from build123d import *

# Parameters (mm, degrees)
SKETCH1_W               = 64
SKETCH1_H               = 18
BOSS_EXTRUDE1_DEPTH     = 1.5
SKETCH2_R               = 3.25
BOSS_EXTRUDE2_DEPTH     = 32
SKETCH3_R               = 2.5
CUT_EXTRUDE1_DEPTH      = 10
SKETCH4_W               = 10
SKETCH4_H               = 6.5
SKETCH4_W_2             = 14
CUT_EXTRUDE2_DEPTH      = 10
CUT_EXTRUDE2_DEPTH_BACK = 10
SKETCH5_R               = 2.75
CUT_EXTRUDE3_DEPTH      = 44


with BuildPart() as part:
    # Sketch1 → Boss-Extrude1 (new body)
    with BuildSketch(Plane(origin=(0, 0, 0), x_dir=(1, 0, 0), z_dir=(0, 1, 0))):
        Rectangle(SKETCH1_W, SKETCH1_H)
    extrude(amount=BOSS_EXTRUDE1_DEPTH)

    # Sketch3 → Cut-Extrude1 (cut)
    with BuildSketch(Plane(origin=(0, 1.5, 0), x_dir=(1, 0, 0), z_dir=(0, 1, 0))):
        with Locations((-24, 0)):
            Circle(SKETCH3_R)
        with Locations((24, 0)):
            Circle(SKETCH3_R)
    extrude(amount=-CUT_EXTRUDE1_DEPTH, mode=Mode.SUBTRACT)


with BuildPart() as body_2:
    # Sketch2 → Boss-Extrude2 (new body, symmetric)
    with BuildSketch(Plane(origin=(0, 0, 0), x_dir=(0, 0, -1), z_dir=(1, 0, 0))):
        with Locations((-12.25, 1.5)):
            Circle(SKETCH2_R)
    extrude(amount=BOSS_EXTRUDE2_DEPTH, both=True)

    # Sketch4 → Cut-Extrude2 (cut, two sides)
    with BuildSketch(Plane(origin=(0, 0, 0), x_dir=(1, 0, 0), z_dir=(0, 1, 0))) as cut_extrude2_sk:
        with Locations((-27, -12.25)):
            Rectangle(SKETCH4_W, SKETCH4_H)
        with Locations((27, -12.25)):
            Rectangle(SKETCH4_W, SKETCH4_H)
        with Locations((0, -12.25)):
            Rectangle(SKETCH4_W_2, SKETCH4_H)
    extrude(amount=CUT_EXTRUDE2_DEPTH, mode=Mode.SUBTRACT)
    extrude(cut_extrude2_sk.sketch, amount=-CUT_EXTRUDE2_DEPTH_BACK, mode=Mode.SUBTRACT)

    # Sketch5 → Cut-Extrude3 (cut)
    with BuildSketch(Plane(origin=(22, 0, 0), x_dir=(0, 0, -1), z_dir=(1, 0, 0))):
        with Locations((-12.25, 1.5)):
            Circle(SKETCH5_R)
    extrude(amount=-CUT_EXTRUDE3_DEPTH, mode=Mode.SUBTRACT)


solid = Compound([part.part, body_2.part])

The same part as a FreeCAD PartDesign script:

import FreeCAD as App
import Part
import Sketcher
from FreeCAD import Vector
Q = App.Units.Quantity

doc = App.newDocument("Part")
body = doc.addObject("PartDesign::Body", "Body")

# Sketch on XZ plane
sketch1 = body.newObject("Sketcher::SketchObject", "Sketch")
sketch1.AttachmentSupport = (doc.getObject("XZ_Plane"), [""])
sketch1.MapMode = "FlatFace"
sketch1.addGeometry([
    Part.LineSegment(Vector(-32, -9, 0), Vector(-32, 9, 0)),
    Part.LineSegment(Vector(-32, 9, 0), Vector(32, 9, 0)),
    Part.LineSegment(Vector(32, 9, 0), Vector(32, -9, 0)),
    Part.LineSegment(Vector(32, -9, 0), Vector(-32, -9, 0)),
], False)
sketch1.addConstraint([
    Sketcher.Constraint("Coincident", 0, 2, 1, 1),
    Sketcher.Constraint("Coincident", 1, 2, 2, 1),
    Sketcher.Constraint("Coincident", 2, 2, 3, 1),
    Sketcher.Constraint("Coincident", 3, 2, 0, 1),
    Sketcher.Constraint("Vertical", 0),
    Sketcher.Constraint("Horizontal", 1),
    Sketcher.Constraint("Vertical", 2),
    Sketcher.Constraint("Horizontal", 3),
    Sketcher.Constraint("Symmetric", 0, 2, 2, 2, -1, 1),
    Sketcher.Constraint("DistanceX", 1, 1, 1, 2, Q("64 mm")),
    Sketcher.Constraint("DistanceY", 0, 1, 0, 2, Q("18 mm")),
])
pad1 = body.newObject("PartDesign::Pad", "Pad")
pad1.Profile = sketch1
pad1.Length = 1.5
pad1.Reversed = True

# Sketch on XZ plane
sketch2 = body.newObject("Sketcher::SketchObject", "Sketch001")
sketch2.AttachmentSupport = (doc.getObject("XZ_Plane"), [""])
sketch2.MapMode = "FlatFace"
sketch2.AttachmentOffset = App.Placement(Vector(0, 0, -1.5), App.Rotation())
sketch2.addGeometry([
    Part.Circle(Vector(-24, 0, 0), Vector(0, 0, 1), 2.5),
    Part.Circle(Vector(24, 0, 0), Vector(0, 0, 1), 2.5),
], False)
sketch2.addConstraint([
    Sketcher.Constraint("Equal", 0, 1),
    Sketcher.Constraint("Symmetric", 0, 3, 1, 3, -1, 1),
    Sketcher.Constraint("PointOnObject", 0, 3, -1),
    Sketcher.Constraint("Diameter", 0, Q("5 mm")),
    Sketcher.Constraint("DistanceX", 0, 3, -1, 1, Q("24 mm")),
])
pocket1 = body.newObject("PartDesign::Pocket", "Pocket")
pocket1.Profile = sketch2
pocket1.Length = 10
pocket1.Reversed = True
body2 = doc.addObject("PartDesign::Body", "Body001")
body2.AllowCompound = True

# Sketch on YZ plane
sketch3 = body2.newObject("Sketcher::SketchObject", "Sketch002")
sketch3.AttachmentSupport = (doc.getObject("YZ_Plane001"), [""])
sketch3.MapMode = "FlatFace"
sketch3.addGeometry(Part.Circle(Vector(1.5, 12.25, 0), Vector(0, 0, 1), 3.25), False)
sketch3.addConstraint([
    Sketcher.Constraint("Diameter", 0, Q("6.5 mm")),
    Sketcher.Constraint("DistanceX", -1, 1, 0, 3, Q("1.5 mm")),
    Sketcher.Constraint("DistanceY", -1, 1, 0, 3, Q("12.25 mm")),
])
pad2 = body2.newObject("PartDesign::Pad", "Pad001")
pad2.Profile = sketch3
pad2.Length = 64
pad2.Midplane = True

# Sketch on XZ plane
sketch4 = body2.newObject("Sketcher::SketchObject", "Sketch003")
sketch4.AttachmentSupport = (doc.getObject("XZ_Plane001"), [""])
sketch4.MapMode = "FlatFace"
sketch4.addGeometry([
    Part.LineSegment(Vector(-32, 9, 0), Vector(-32, 15.5, 0)),  # 0
    Part.LineSegment(Vector(-32, 15.5, 0), Vector(-22, 15.5, 0)),  # 1
    Part.LineSegment(Vector(-22, 15.5, 0), Vector(-22, 9, 0)),  # 2
    Part.LineSegment(Vector(-22, 9, 0), Vector(-32, 9, 0)),  # 3
    Part.LineSegment(Vector(22, 9, 0), Vector(22, 15.5, 0)),  # 4
    Part.LineSegment(Vector(22, 15.5, 0), Vector(32, 15.5, 0)),  # 5
    Part.LineSegment(Vector(32, 15.5, 0), Vector(32, 9, 0)),  # 6
    Part.LineSegment(Vector(32, 9, 0), Vector(22, 9, 0)),  # 7
    Part.LineSegment(Vector(-7, 9, 0), Vector(-7, 15.5, 0)),  # 8
    Part.LineSegment(Vector(-7, 15.5, 0), Vector(7, 15.5, 0)),  # 9
    Part.LineSegment(Vector(7, 15.5, 0), Vector(7, 9, 0)),  # 10
    Part.LineSegment(Vector(7, 9, 0), Vector(-7, 9, 0)),  # 11
], False)
sketch4.addConstraint([
    Sketcher.Constraint("Coincident", 0, 2, 1, 1),
    Sketcher.Constraint("Coincident", 1, 2, 2, 1),
    Sketcher.Constraint("Coincident", 2, 2, 3, 1),
    Sketcher.Constraint("Coincident", 3, 2, 0, 1),
    Sketcher.Constraint("Coincident", 4, 2, 5, 1),
    Sketcher.Constraint("Coincident", 5, 2, 6, 1),
    Sketcher.Constraint("Coincident", 6, 2, 7, 1),
    Sketcher.Constraint("Coincident", 7, 2, 4, 1),
    Sketcher.Constraint("Coincident", 8, 2, 9, 1),
    Sketcher.Constraint("Coincident", 9, 2, 10, 1),
    Sketcher.Constraint("Coincident", 10, 2, 11, 1),
    Sketcher.Constraint("Coincident", 11, 2, 8, 1),
    Sketcher.Constraint("Vertical", 0),
    Sketcher.Constraint("Horizontal", 1),
    Sketcher.Constraint("Vertical", 2),
    Sketcher.Constraint("Horizontal", 3),
    Sketcher.Constraint("Vertical", 4),
    Sketcher.Constraint("Horizontal", 5),
    Sketcher.Constraint("Vertical", 6),
    Sketcher.Constraint("Horizontal", 7),
    Sketcher.Constraint("Vertical", 8),
    Sketcher.Constraint("Horizontal", 9),
    Sketcher.Constraint("Vertical", 10),
    Sketcher.Constraint("Horizontal", 11),
    Sketcher.Constraint("Symmetric", 1, 2, 4, 2, -2),
    Sketcher.Constraint("Symmetric", 3, 2, 6, 2, -2),
    Sketcher.Constraint("Horizontal", 5, 2, 8, 2),
    Sketcher.Constraint("Horizontal", 7, 2, 10, 2),
    Sketcher.Constraint("DistanceX", 1, 1, 1, 2, Q("10 mm")),
    Sketcher.Constraint("DistanceX", 9, 1, 9, 2, Q("14 mm")),
    Sketcher.Constraint("DistanceY", 0, 1, 0, 2, Q("6.5 mm")),
    Sketcher.Constraint("DistanceX", 0, 2, -1, 1, Q("32 mm")),
    Sketcher.Constraint("DistanceY", -1, 1, 2, 2, Q("9 mm")),
    Sketcher.Constraint("DistanceX", 8, 2, -1, 1, Q("7 mm")),
])
pocket2 = body2.newObject("PartDesign::Pocket", "Pocket001")
pocket2.Profile = sketch4
pocket2.Type = "ThroughAll"
pocket2.Midplane = True

# Sketch on YZ plane
sketch5 = body2.newObject("Sketcher::SketchObject", "Sketch004")
sketch5.AttachmentSupport = (doc.getObject("YZ_Plane001"), [""])
sketch5.MapMode = "FlatFace"
sketch5.AttachmentOffset = App.Placement(Vector(0, 0, 22), App.Rotation())
sketch5.addGeometry(Part.Circle(Vector(1.5, 12.25, 0), Vector(0, 0, 1), 2.75), False)
sketch5.addConstraint([
    Sketcher.Constraint("Diameter", 0, Q("5.5 mm")),
    Sketcher.Constraint("DistanceX", -1, 1, 0, 3, Q("1.5 mm")),
    Sketcher.Constraint("DistanceY", -1, 1, 0, 3, Q("12.25 mm")),
])
pocket3 = body2.newObject("PartDesign::Pocket", "Pocket002")
pocket3.Profile = sketch5
pocket3.Length = 44

doc.recompute()
